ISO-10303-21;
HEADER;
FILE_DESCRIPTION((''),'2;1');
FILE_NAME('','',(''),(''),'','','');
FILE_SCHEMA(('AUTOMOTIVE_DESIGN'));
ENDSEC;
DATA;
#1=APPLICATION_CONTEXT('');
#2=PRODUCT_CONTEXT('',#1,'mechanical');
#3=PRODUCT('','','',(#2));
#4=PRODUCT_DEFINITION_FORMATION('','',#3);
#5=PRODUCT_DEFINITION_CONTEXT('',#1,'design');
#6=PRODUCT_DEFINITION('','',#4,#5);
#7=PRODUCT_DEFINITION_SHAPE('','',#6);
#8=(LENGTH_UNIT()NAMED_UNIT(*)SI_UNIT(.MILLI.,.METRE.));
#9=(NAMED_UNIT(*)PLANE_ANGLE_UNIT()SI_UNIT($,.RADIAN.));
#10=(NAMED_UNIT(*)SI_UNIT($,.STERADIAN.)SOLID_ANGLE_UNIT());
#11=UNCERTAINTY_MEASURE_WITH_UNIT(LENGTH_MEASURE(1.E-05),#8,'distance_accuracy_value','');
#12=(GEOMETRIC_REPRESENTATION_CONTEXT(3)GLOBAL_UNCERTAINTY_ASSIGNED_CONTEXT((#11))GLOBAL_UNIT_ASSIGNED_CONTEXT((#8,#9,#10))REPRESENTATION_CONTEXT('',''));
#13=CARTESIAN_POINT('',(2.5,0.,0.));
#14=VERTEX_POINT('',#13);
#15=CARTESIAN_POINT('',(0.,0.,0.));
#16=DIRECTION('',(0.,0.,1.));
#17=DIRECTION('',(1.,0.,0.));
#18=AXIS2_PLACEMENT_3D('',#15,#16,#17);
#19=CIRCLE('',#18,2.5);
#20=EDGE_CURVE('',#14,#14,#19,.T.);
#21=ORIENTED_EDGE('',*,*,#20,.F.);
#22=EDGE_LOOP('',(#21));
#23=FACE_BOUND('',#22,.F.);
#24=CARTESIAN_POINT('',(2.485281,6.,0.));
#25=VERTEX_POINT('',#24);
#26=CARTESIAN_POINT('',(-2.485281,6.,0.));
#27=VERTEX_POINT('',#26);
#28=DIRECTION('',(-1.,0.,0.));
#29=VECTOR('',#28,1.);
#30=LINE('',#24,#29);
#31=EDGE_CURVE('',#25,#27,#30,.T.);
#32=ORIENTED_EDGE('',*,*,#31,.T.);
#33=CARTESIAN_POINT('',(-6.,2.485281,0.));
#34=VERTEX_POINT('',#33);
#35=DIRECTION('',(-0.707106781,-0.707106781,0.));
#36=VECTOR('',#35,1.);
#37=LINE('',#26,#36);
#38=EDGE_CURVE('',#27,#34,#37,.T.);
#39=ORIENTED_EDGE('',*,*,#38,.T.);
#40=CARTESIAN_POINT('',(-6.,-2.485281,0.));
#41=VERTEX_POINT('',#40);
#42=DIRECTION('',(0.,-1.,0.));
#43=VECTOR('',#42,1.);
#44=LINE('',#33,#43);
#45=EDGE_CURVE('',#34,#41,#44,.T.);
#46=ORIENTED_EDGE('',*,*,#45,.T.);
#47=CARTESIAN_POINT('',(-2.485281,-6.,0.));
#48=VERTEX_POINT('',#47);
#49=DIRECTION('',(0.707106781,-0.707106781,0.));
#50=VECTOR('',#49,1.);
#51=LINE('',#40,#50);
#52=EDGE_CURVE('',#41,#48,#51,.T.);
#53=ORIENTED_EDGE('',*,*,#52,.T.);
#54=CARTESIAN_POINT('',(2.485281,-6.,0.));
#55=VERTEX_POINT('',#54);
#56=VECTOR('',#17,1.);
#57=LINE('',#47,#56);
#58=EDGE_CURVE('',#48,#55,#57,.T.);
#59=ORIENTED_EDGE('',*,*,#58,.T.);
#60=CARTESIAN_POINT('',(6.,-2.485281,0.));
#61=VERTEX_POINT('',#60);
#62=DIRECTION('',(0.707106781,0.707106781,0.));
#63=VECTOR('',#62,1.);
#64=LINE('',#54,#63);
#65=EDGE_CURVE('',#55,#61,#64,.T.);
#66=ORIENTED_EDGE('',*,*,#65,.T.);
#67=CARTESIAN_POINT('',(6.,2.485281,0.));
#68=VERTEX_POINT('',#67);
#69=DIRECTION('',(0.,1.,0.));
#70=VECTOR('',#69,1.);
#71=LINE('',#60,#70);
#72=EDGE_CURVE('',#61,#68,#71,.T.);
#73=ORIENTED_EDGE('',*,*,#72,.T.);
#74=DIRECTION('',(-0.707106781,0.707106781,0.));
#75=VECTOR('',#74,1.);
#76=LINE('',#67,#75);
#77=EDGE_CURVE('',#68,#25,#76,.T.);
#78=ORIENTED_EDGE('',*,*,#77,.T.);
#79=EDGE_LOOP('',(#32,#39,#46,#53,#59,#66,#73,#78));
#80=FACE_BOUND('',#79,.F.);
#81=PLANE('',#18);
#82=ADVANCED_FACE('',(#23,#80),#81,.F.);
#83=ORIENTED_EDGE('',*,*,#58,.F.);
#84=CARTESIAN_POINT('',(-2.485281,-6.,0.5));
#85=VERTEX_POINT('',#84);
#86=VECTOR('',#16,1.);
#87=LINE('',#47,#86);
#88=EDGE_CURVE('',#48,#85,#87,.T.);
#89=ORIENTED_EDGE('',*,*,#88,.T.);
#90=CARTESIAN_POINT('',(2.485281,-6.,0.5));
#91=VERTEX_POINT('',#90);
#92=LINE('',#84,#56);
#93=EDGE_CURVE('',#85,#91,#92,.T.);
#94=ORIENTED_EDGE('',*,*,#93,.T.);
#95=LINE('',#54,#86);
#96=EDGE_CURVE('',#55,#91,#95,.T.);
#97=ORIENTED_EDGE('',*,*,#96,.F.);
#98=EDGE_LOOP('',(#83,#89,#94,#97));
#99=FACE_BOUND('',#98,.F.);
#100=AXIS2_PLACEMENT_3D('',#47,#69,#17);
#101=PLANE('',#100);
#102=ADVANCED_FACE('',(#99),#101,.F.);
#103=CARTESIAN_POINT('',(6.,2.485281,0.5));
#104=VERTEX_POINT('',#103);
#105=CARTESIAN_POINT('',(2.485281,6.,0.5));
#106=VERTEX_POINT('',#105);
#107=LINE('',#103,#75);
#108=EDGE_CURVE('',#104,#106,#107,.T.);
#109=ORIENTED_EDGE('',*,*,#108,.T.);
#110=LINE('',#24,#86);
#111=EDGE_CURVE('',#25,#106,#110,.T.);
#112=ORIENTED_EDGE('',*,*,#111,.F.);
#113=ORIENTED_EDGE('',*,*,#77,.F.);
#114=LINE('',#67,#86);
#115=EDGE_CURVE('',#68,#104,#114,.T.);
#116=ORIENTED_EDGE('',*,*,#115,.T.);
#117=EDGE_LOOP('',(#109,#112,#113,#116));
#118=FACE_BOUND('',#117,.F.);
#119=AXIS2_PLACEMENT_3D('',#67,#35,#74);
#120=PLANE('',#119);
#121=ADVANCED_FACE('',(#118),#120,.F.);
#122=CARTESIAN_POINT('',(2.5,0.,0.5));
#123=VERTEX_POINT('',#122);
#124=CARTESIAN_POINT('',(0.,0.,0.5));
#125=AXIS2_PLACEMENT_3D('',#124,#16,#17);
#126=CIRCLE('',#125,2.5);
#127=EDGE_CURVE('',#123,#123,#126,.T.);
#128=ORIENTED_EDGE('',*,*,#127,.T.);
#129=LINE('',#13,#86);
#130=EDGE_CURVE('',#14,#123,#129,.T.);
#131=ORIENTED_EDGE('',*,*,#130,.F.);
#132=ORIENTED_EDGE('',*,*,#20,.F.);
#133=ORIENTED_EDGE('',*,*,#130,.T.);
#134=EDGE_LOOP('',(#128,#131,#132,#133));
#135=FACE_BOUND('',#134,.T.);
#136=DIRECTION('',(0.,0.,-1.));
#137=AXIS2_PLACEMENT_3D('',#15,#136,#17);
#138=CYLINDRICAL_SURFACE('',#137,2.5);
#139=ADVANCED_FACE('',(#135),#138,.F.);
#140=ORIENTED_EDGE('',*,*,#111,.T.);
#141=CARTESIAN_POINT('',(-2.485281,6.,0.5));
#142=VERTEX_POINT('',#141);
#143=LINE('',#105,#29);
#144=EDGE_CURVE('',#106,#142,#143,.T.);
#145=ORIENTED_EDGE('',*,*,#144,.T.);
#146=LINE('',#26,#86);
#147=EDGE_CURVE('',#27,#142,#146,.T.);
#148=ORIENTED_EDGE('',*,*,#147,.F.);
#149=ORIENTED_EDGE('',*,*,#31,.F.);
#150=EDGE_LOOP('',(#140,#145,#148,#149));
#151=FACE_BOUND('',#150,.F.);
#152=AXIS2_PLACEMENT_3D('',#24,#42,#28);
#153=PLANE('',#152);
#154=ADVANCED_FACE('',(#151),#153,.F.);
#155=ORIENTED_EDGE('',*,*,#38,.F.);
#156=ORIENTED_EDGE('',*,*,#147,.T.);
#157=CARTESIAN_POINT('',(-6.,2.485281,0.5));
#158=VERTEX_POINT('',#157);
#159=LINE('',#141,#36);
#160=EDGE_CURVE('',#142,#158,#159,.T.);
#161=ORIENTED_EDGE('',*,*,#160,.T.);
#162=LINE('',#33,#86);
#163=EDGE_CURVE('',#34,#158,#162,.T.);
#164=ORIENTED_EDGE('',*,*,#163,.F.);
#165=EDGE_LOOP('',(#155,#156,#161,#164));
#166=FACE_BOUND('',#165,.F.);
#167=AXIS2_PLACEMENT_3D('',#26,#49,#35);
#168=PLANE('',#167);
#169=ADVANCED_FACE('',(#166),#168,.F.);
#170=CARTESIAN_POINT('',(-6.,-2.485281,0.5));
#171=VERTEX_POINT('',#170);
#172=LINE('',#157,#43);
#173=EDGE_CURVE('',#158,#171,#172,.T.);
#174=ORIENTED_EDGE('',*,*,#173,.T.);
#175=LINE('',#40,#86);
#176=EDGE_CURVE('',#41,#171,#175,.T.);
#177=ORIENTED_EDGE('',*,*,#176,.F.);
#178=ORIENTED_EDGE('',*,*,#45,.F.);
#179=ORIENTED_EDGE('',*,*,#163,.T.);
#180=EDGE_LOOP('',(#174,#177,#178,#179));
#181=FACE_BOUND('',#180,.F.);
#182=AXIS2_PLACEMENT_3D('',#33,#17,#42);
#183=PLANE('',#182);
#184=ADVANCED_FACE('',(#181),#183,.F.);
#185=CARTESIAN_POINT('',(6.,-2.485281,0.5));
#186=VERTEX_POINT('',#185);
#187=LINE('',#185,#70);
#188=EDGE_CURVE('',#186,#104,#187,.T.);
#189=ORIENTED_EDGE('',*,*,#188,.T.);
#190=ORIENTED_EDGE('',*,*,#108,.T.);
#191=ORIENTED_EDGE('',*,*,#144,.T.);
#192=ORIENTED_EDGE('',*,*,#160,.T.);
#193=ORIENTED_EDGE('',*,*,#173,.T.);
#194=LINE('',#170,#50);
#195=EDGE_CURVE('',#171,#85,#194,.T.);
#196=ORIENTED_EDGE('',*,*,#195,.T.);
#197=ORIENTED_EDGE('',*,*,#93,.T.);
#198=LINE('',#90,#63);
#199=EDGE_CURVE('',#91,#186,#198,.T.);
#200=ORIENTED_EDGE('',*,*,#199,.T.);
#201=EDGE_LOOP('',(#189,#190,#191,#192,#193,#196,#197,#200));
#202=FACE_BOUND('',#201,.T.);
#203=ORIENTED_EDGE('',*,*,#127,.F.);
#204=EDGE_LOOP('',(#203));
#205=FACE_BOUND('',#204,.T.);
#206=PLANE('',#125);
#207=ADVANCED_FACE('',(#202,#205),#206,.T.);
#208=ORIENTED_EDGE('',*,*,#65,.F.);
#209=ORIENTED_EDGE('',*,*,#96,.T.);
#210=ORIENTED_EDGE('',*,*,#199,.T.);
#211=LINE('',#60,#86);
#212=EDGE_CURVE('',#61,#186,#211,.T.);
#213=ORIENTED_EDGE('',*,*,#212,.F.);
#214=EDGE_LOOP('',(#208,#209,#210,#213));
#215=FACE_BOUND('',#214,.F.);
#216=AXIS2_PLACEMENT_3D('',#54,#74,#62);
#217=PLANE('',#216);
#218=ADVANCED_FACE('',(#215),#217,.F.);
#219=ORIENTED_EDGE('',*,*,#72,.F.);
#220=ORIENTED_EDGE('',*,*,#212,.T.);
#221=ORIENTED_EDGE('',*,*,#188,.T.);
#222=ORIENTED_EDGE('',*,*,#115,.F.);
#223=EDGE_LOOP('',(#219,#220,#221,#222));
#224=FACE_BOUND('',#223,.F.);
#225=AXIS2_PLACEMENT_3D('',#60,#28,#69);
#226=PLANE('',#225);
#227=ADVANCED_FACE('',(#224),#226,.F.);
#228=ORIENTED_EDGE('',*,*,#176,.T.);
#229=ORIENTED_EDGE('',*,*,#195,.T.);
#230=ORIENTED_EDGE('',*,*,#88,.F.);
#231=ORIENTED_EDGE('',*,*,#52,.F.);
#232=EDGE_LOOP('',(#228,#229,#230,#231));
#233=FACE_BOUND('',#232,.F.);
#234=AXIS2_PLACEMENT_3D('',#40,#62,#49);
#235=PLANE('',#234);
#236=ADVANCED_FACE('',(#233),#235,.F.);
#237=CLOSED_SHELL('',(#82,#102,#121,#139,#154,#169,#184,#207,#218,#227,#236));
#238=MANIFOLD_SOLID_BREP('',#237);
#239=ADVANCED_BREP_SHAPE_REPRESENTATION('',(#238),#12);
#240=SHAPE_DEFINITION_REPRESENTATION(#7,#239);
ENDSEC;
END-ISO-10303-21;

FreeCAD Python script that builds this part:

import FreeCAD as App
import Part
import Sketcher

V = App.Vector
Q = App.Units.Quantity

doc = App.newDocument("Part")
params = doc.addObject("Spreadsheet::Sheet", "Params")
for row, (alias, value) in enumerate([
    ("sketch1_diameter", "5 mm"),
    ("pad1_length", "0.5 mm"),
], start=1):
    params.set(f"A{row}", alias)
    params.set(f"B{row}", "=" + value)
    params.setAlias(f"B{row}", alias)

body = doc.addObject("PartDesign::Body", "Body")

# Sketch on XY plane
sketch1 = doc.addObject("Sketcher::SketchObject", "Sketch")
body.addObject(sketch1)
sketch1.AttachmentSupport = (doc.XY_Plane, [""])
sketch1.MapMode = "FlatFace"
sketch1.addGeometry(Part.LineSegment(V(2.5, 6, 0), V(-2.5, 6, 0)), False)
sketch1.addGeometry(Part.LineSegment(V(-2.5, 6, 0), V(-6, 2.5, 0)), False)
sketch1.addGeometry(Part.LineSegment(V(-6, 2.5, 0), V(-6, -2.5, 0)), False)
sketch1.addGeometry(Part.LineSegment(V(-6, -2.5, 0), V(-2.5, -6, 0)), False)
sketch1.addGeometry(Part.LineSegment(V(-2.5, -6, 0), V(2.5, -6, 0)), False)
sketch1.addGeometry(Part.LineSegment(V(2.5, -6, 0), V(6, -2.5, 0)), False)
sketch1.addGeometry(Part.LineSegment(V(6, -2.5, 0), V(6, 2.5, 0)), False)
sketch1.addGeometry(Part.LineSegment(V(6, 2.5, 0), V(2.5, 6, 0)), False)
sketch1.addGeometry(Part.Circle(V(0, 0, 0), V(0, 0, 1), 2.5), False)
sketch1.addConstraint(Sketcher.Constraint("Coincident", 0, 2, 1, 1))
sketch1.addConstraint(Sketcher.Constraint("Coincident", 1, 2, 2, 1))
sketch1.addConstraint(Sketcher.Constraint("Coincident", 2, 2, 3, 1))
sketch1.addConstraint(Sketcher.Constraint("Coincident", 3, 2, 4, 1))
sketch1.addConstraint(Sketcher.Constraint("Coincident", 4, 2, 5, 1))
sketch1.addConstraint(Sketcher.Constraint("Coincident", 5, 2, 6, 1))
sketch1.addConstraint(Sketcher.Constraint("Coincident", 6, 2, 7, 1))
sketch1.addConstraint(Sketcher.Constraint("Coincident", 7, 2, 0, 1))
sketch1.addConstraint(Sketcher.Constraint("Horizontal", 0))
sketch1.addConstraint(Sketcher.Constraint("Vertical", 2))
sketch1.addConstraint(Sketcher.Constraint("Horizontal", 4))
sketch1.addConstraint(Sketcher.Constraint("Vertical", 6))
sketch1.addConstraint(Sketcher.Constraint("Coincident", 8, 3, -1, 1))
sketch1.addConstraint(Sketcher.Constraint("Symmetric", 0, 2, 4, 2, -1, 1))
sketch1.addConstraint(Sketcher.Constraint("Symmetric", 1, 2, 5, 2, -1, 1))
sketch1.addConstraint(Sketcher.Constraint("Perpendicular", 1, 3))
sketch1.addConstraint(Sketcher.Constraint("Perpendicular", 5, 7))
sketch1.addConstraint(Sketcher.Constraint("Horizontal", 2, 2, 5, 2))
sketch1.addConstraint(Sketcher.Constraint("Horizontal", 1, 2, 6, 2))
sketch1.addConstraint(Sketcher.Constraint("Vertical", 0, 2, 3, 2))
sketch1.addConstraint(Sketcher.Constraint("Equal", 4, 2))
sketch1.addConstraint(Sketcher.Constraint("Diameter", 8, Q("5 mm")))
sketch1.addConstraint(Sketcher.Constraint("DistanceY", -1, 1, 0, 2, Q("6 mm")))
sketch1.addConstraint(Sketcher.Constraint("DistanceX", 0, 2, 0, 1, Q("4.970562 mm")))
sketch1.setExpression("Constraints[21]", "Params.sketch1_diameter")
pad1 = doc.addObject("PartDesign::Pad", "Pad")
body.addObject(pad1)
pad1.Profile = sketch1
pad1.setExpression("Length", "Params.pad1_length")

doc.recompute()
